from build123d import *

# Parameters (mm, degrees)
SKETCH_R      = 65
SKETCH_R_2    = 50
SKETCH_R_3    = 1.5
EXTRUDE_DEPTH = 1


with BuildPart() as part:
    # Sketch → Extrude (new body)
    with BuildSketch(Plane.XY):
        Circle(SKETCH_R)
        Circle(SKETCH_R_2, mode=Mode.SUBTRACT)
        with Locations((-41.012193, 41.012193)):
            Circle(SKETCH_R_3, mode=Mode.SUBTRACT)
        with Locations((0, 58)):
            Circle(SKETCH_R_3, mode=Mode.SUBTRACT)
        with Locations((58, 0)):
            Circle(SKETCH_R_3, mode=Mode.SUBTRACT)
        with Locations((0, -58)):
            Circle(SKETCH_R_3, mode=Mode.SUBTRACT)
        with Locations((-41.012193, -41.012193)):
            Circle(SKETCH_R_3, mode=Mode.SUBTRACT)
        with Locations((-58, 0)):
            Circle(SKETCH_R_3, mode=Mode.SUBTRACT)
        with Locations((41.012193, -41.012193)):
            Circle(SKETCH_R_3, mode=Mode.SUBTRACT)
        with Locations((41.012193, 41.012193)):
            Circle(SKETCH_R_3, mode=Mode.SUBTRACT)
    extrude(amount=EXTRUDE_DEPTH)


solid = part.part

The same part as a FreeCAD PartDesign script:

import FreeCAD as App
import Part
import Sketcher

V = App.Vector
Q = App.Units.Quantity

doc = App.newDocument("Part")
body = doc.addObject("PartDesign::Body", "Body")

# Sketch on XY plane
sketch1 = body.newObject("Sketcher::SketchObject", "Sketch")
sketch1.AttachmentSupport = (doc.getObject("XY_Plane"), [""])
sketch1.MapMode = "FlatFace"
sketch1.addGeometry(Part.Circle(V(0, 0, 0), V(0, 0, 1), 65), False)
sketch1.addGeometry(Part.Circle(V(-41, -41, 0), V(0, 0, 1), 1.5), False)
sketch1.addGeometry(Part.Circle(V(0, -58, 0), V(0, 0, 1), 1.5), False)
sketch1.addGeometry(Part.Circle(V(41, -41, 0), V(0, 0, 1), 1.5), False)
sketch1.addGeometry(Part.Circle(V(-58, 0, 0), V(0, 0, 1), 1.5), False)
sketch1.addGeometry(Part.Circle(V(-41, 41, 0), V(0, 0, 1), 1.5), False)
sketch1.addGeometry(Part.Circle(V(0, 0, 0), V(0, 0, 1), 50), False)
sketch1.addGeometry(Part.Circle(V(58, 0, 0), V(0, 0, 1), 1.5), False)
sketch1.addGeometry(Part.Circle(V(0, 58, 0), V(0, 0, 1), 1.5), False)
sketch1.addGeometry(Part.Circle(V(41, 41, 0), V(0, 0, 1), 1.5), False)
sketch1.addConstraint(Sketcher.Constraint("Coincident", 0, 3, -1, 1))
sketch1.addConstraint(Sketcher.Constraint("Coincident", 6, 3, -1, 1))
sketch1.addConstraint(Sketcher.Constraint("Equal", 1, 2))
sketch1.addConstraint(Sketcher.Constraint("Equal", 2, 3))
sketch1.addConstraint(Sketcher.Constraint("Equal", 3, 4))
sketch1.addConstraint(Sketcher.Constraint("Equal", 4, 5))
sketch1.addConstraint(Sketcher.Constraint("Equal", 5, 7))
sketch1.addConstraint(Sketcher.Constraint("Equal", 7, 8))
sketch1.addConstraint(Sketcher.Constraint("Equal", 8, 9))
sketch1.addConstraint(Sketcher.Constraint("Symmetric", 3, 3, 5, 3, -1, 1))
sketch1.addConstraint(Sketcher.Constraint("Symmetric", 4, 3, 7, 3, -1, 1))
sketch1.addConstraint(Sketcher.Constraint("Symmetric", 2, 3, 8, 3, -1, 1))
sketch1.addConstraint(Sketcher.Constraint("Symmetric", 1, 3, 9, 3, -1, 1))
sketch1.addConstraint(Sketcher.Constraint("Symmetric", 1, 3, 3, 3, -2))
sketch1.addConstraint(Sketcher.Constraint("PointOnObject", 2, 3, -2))
sketch1.addConstraint(Sketcher.Constraint("PointOnObject", 4, 3, -1))
sketch1.addConstraint(Sketcher.Constraint("Diameter", 0, Q("130 mm")))
sketch1.addConstraint(Sketcher.Constraint("Diameter", 1, Q("3 mm")))
sketch1.addConstraint(Sketcher.Constraint("Diameter", 6, Q("100 mm")))
sketch1.addConstraint(Sketcher.Constraint("DistanceY", 2, 3, -1, 1, Q("58 mm")))
sketch1.addConstraint(Sketcher.Constraint("DistanceX", 4, 3, -1, 1, Q("58 mm")))
sketch1.addConstraint(Sketcher.Constraint("DistanceX", 1, 3, -1, 1, Q("41.012193 mm")))
sketch1.addConstraint(Sketcher.Constraint("DistanceY", 1, 3, -1, 1, Q("41.012193 mm")))
pad1 = body.newObject("PartDesign::Pad", "Pad")
pad1.Profile = sketch1
pad1.Length = 1

doc.recompute()
